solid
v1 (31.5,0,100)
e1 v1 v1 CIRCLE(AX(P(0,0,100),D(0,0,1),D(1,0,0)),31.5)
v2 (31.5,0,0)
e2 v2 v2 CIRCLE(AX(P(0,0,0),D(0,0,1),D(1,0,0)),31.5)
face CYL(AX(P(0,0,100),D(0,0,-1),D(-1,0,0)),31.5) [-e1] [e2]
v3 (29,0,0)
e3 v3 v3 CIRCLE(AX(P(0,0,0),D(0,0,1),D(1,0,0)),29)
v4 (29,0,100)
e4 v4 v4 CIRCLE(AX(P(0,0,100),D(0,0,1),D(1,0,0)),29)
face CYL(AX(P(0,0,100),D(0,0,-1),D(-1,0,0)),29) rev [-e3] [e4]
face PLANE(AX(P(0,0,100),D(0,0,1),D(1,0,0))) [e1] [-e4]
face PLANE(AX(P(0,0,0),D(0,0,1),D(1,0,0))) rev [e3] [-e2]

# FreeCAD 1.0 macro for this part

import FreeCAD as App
import Part
import Sketcher

V = App.Vector

doc = App.newDocument("Part")
body = doc.addObject("PartDesign::Body", "Body")

# Sketch on XY plane
sketch1 = doc.addObject("Sketcher::SketchObject", "Sketch")
body.addObject(sketch1)
sketch1.AttachmentSupport = (doc.XY_Plane, [""])
sketch1.MapMode = "FlatFace"
sketch1.addGeometry([
    Part.Circle(V(0, 0, 0), V(0, 0, 1), 31.5),
    Part.Circle(V(0, 0, 0), V(0, 0, 1), 29),
], False)
sketch1.addConstraint([
    Sketcher.Constraint("Coincident", 0, 3, -1, 1),
    Sketcher.Constraint("Coincident", 1, 3, -1, 1),
    Sketcher.Constraint("Diameter", 0, 63.0),
    Sketcher.Constraint("Diameter", 1, 58.0),
])
pad1 = doc.addObject("PartDesign::Pad", "Pad")
body.addObject(pad1)
pad1.Profile = sketch1
pad1.Length = 100

doc.recompute()
